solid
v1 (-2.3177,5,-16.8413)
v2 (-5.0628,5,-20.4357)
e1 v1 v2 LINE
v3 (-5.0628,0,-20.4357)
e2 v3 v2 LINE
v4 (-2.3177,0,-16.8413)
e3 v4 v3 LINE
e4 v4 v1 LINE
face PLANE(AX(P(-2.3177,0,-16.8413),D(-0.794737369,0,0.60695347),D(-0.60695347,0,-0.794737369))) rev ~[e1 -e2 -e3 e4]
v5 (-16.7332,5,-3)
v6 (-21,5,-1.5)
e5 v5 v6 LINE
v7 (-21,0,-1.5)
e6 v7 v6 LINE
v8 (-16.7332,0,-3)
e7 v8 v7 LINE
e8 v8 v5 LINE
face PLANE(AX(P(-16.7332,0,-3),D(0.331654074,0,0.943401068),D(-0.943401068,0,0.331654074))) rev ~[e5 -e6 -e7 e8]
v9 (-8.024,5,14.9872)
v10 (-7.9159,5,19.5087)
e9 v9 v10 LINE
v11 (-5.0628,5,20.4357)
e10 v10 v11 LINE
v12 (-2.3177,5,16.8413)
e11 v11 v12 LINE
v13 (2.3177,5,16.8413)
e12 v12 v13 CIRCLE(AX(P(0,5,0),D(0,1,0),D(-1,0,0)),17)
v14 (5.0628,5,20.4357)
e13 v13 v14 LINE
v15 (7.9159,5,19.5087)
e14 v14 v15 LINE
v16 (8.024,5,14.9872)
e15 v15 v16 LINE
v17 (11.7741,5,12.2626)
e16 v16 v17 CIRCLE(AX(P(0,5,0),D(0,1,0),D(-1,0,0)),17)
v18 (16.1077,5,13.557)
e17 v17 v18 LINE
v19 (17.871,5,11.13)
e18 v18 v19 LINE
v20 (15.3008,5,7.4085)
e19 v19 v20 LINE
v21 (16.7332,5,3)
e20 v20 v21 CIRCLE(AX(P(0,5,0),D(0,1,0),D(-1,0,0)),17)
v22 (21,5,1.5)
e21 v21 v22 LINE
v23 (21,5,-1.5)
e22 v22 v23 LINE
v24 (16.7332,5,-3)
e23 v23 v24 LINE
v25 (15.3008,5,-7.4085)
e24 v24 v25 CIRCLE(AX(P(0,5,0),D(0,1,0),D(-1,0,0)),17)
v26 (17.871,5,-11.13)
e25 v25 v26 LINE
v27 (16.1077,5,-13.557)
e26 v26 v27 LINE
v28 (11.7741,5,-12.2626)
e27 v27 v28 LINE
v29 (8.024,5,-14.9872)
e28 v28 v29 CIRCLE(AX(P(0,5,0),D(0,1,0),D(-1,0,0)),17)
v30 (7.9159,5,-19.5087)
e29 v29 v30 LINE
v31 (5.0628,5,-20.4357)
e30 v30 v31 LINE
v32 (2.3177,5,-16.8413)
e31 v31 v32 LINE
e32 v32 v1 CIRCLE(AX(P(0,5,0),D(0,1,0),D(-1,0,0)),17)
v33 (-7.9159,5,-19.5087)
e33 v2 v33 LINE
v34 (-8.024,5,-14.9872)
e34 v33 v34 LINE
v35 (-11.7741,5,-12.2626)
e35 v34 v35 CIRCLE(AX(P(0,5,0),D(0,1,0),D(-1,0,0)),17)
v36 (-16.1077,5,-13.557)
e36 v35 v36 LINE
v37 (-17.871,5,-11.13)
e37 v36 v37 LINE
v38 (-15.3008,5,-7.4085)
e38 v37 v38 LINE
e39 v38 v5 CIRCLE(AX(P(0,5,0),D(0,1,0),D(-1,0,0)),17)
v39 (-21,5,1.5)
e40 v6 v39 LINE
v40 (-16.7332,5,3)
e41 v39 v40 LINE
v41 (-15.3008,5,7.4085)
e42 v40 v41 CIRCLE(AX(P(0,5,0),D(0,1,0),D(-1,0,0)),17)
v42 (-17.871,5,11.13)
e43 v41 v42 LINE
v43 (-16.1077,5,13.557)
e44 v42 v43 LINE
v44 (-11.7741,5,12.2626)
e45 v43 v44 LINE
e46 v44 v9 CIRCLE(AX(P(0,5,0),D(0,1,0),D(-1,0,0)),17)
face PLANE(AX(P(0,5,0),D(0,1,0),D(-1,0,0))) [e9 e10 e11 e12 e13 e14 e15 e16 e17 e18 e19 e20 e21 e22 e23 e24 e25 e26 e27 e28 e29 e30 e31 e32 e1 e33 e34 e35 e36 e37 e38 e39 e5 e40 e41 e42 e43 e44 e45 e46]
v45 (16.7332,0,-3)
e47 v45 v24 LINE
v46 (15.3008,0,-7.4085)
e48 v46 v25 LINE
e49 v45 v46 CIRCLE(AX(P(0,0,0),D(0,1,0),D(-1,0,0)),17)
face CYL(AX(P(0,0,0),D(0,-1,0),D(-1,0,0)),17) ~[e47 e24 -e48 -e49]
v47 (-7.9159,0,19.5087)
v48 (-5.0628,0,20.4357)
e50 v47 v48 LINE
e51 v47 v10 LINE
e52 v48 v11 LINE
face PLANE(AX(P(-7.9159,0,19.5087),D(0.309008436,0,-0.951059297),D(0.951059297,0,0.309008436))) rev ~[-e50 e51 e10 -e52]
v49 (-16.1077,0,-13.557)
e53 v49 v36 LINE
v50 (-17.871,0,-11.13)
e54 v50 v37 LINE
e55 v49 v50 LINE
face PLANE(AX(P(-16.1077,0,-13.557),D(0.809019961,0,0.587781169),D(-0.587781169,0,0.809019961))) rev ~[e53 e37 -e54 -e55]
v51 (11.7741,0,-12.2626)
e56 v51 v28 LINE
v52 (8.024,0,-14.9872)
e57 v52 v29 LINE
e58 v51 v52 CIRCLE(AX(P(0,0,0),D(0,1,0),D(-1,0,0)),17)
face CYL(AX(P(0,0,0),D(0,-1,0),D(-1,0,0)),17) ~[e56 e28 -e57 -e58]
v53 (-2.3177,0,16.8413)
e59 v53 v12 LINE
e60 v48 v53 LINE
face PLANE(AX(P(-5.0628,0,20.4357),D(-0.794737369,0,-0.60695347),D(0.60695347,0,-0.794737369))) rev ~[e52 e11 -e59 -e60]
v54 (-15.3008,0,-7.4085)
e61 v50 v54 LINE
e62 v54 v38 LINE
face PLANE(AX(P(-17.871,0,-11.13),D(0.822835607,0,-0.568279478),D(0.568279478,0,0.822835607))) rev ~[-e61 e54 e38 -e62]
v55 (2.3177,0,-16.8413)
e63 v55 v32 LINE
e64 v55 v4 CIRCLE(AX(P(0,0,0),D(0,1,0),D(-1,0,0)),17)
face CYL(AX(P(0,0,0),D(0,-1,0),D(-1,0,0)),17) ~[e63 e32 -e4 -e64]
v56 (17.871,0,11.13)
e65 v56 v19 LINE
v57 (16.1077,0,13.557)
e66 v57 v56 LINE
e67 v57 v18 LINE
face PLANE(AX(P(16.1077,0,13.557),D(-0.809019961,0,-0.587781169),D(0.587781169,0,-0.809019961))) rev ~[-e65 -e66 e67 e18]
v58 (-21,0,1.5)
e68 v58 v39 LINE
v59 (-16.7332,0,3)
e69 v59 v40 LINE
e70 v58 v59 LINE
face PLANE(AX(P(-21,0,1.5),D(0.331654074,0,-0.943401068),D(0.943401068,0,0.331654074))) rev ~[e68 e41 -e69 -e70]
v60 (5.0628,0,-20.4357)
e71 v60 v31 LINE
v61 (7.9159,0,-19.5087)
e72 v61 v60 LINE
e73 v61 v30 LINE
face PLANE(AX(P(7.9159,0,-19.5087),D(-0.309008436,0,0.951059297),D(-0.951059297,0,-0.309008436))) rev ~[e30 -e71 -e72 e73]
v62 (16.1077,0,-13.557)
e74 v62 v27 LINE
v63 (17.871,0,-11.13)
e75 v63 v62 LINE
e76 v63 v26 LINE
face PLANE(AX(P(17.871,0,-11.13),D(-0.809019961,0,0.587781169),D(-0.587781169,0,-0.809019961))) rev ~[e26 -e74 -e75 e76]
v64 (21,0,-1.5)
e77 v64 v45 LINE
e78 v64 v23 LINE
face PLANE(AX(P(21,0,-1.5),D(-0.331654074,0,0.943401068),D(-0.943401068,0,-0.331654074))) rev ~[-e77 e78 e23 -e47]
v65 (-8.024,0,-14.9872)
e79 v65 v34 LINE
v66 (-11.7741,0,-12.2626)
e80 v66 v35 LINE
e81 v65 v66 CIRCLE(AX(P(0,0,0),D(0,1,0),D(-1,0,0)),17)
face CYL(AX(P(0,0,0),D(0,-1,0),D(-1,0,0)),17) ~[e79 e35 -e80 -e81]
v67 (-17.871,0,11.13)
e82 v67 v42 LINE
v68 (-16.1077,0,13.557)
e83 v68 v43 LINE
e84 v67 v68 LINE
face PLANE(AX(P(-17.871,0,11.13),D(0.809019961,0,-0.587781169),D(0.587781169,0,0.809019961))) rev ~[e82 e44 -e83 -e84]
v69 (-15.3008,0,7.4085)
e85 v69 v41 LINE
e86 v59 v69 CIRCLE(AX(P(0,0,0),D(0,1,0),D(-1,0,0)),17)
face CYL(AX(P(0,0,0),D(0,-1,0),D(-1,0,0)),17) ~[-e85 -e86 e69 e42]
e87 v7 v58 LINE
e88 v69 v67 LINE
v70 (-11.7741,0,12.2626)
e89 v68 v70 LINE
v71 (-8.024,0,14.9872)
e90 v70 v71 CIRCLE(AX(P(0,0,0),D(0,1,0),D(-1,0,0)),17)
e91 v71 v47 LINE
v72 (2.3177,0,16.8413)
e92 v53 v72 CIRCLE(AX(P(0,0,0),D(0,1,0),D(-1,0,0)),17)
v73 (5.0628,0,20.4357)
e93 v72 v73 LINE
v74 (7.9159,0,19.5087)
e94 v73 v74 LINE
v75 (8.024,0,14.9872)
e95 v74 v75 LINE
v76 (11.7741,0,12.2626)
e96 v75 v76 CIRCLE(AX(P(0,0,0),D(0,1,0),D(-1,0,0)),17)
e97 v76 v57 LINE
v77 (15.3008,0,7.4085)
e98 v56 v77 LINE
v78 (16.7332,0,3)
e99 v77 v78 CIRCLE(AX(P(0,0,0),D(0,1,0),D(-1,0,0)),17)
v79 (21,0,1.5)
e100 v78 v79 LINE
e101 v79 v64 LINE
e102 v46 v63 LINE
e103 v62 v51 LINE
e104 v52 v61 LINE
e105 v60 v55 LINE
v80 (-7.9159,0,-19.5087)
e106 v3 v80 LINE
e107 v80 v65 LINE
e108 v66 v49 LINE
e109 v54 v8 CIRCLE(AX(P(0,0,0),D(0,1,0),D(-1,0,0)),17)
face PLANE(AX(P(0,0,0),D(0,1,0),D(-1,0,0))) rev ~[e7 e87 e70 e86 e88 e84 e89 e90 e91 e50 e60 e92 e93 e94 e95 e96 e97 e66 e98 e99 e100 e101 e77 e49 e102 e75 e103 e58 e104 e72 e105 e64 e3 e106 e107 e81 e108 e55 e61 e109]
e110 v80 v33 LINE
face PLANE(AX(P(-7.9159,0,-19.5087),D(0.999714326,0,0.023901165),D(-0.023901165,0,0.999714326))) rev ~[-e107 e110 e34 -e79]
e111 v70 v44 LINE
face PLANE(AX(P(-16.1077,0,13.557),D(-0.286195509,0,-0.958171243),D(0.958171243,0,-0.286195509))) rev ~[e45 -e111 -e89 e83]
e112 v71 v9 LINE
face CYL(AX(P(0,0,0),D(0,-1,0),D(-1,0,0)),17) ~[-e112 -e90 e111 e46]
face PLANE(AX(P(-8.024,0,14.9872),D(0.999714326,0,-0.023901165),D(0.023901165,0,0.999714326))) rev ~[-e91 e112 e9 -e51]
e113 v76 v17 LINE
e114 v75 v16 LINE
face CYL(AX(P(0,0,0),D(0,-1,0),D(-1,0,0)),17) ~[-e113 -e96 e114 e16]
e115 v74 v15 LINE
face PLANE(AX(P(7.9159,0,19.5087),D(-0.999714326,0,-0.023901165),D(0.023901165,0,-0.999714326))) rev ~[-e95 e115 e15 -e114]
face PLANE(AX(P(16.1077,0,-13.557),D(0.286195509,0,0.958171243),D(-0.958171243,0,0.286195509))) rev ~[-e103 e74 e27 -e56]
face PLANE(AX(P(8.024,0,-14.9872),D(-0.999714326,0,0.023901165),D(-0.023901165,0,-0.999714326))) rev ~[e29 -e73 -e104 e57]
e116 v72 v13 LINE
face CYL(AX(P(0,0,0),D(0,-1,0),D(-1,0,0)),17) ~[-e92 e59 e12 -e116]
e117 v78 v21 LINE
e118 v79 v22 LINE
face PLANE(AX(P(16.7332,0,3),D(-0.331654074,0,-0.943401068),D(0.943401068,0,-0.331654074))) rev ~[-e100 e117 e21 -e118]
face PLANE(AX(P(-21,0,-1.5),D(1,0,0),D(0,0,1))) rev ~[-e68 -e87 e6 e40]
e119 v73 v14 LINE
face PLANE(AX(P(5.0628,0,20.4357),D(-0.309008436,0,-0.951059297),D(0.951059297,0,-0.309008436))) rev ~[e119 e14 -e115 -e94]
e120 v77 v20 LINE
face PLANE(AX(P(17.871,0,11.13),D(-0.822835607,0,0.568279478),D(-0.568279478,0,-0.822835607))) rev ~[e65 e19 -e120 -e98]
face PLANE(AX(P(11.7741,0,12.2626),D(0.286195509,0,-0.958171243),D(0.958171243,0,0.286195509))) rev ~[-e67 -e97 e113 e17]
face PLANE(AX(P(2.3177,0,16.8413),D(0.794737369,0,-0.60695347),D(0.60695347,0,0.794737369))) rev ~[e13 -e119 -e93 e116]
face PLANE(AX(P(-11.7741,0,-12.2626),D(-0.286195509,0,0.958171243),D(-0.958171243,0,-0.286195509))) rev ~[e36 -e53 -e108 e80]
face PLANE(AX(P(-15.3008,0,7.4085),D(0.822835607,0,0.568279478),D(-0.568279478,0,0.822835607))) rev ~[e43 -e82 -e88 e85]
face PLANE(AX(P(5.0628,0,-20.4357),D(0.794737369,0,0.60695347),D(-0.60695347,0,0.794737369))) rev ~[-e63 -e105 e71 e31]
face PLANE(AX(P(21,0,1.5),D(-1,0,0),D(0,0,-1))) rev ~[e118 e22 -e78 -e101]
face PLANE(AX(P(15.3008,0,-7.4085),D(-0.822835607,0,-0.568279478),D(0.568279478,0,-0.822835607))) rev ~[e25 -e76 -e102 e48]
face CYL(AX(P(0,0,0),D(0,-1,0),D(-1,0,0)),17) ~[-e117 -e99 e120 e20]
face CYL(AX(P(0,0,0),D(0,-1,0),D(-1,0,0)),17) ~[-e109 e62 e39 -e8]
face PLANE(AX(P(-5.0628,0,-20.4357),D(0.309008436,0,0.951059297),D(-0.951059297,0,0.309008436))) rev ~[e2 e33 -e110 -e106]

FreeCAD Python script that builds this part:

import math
import FreeCAD as App
import Part
import Sketcher

V = App.Vector
Q = App.Units.Quantity

doc = App.newDocument("Part")
params = doc.addObject("Spreadsheet::Sheet", "Params")
for row, (alias, value) in enumerate([
    ("sketch1_radius", "17 mm"),
    ("sketch1_height", "3 mm"),
    ("sketch1_length", "3 mm"),
    ("pad1_length", "5 mm"),
], start=1):
    params.set(f"A{row}", alias)
    params.set(f"B{row}", "=" + value)
    params.setAlias(f"B{row}", alias)

body = doc.addObject("PartDesign::Body", "Body")

sketch1 = body.newObject("Sketcher::SketchObject", "Sketch")
sketch1.AttachmentSupport = (doc.getObject("XZ_Plane"), [""])
sketch1.MapMode = "FlatFace"
sketch1.addGeometry(Part.ArcOfCircle(Part.Circle(V(0, 0, 0), V(0, 0, 1), 17), math.radians(-169.835751), math.radians(-154.164181)), False)
sketch1.addGeometry(Part.LineSegment(V(-16.7332, -3, 0), V(-21, -1.5, 0)), False)
sketch1.addGeometry(Part.LineSegment(V(-21, -1.5, 0), V(-21, 1.5, 0)), False)
sketch1.addGeometry(Part.LineSegment(V(-21, 1.5, 0), V(-16.7332, 3, 0)), False)
sketch1.addGeometry(Part.ArcOfCircle(Part.Circle(V(0, 0, 0), V(0, 0, 1), 17), math.radians(154.164181), math.radians(169.835751)), False)
sketch1.addGeometry(Part.LineSegment(V(-15.3008, 7.4085, 0), V(-17.871, 11.13, 0)), False)
sketch1.addGeometry(Part.LineSegment(V(-17.871, 11.13, 0), V(-16.1077, 13.557, 0)), False)
sketch1.addGeometry(Part.LineSegment(V(-16.1077, 13.557, 0), V(-11.7741, 12.2626, 0)), False)
sketch1.addGeometry(Part.ArcOfCircle(Part.Circle(V(0, 0, 0), V(0, 0, 1), 17), math.radians(118.16416), math.radians(133.835733)), False)
sketch1.addGeometry(Part.LineSegment(V(-8.024, 14.9872, 0), V(-7.9159, 19.5087, 0)), False)
sketch1.addGeometry(Part.LineSegment(V(-7.9159, 19.5087, 0), V(-5.0628, 20.4357, 0)), False)
sketch1.addGeometry(Part.LineSegment(V(-5.0628, 20.4357, 0), V(-2.3177, 16.8413, 0)), False)
sketch1.addGeometry(Part.ArcOfCircle(Part.Circle(V(0, 0, 0), V(0, 0, 1), 17), math.radians(82.164175), math.radians(97.835825)), False)
sketch1.addGeometry(Part.LineSegment(V(2.3177, 16.8413, 0), V(5.0628, 20.4357, 0)), False)
sketch1.addGeometry(Part.LineSegment(V(5.0628, 20.4357, 0), V(7.9159, 19.5087, 0)), False)
sketch1.addGeometry(Part.LineSegment(V(7.9159, 19.5087, 0), V(8.024, 14.9872, 0)), False)
sketch1.addGeometry(Part.ArcOfCircle(Part.Circle(V(0, 0, 0), V(0, 0, 1), 17), math.radians(46.164267), math.radians(61.83584)), False)
sketch1.addGeometry(Part.LineSegment(V(11.7741, 12.2626, 0), V(16.1077, 13.557, 0)), False)
sketch1.addGeometry(Part.LineSegment(V(16.1077, 13.557, 0), V(17.871, 11.13, 0)), False)
sketch1.addGeometry(Part.LineSegment(V(17.871, 11.13, 0), V(15.3008, 7.4085, 0)), False)
sketch1.addGeometry(Part.ArcOfCircle(Part.Circle(V(0, 0, 0), V(0, 0, 1), 17), math.radians(10.164249), math.radians(25.835819)), False)
sketch1.addGeometry(Part.LineSegment(V(16.7332, 3, 0), V(21, 1.5, 0)), False)
sketch1.addGeometry(Part.LineSegment(V(21, 1.5, 0), V(21, -1.5, 0)), False)
sketch1.addGeometry(Part.LineSegment(V(21, -1.5, 0), V(16.7332, -3, 0)), False)
sketch1.addGeometry(Part.ArcOfCircle(Part.Circle(V(0, 0, 0), V(0, 0, 1), 17), math.radians(-25.835819), math.radians(-10.164249)), False)
sketch1.addGeometry(Part.LineSegment(V(15.3008, -7.4085, 0), V(17.871, -11.13, 0)), False)
sketch1.addGeometry(Part.LineSegment(V(17.871, -11.13, 0), V(16.1077, -13.557, 0)), False)
sketch1.addGeometry(Part.LineSegment(V(16.1077, -13.557, 0), V(11.7741, -12.2626, 0)), False)
sketch1.addGeometry(Part.ArcOfCircle(Part.Circle(V(0, 0, 0), V(0, 0, 1), 17), math.radians(-61.83584), math.radians(-46.164267)), False)
sketch1.addGeometry(Part.LineSegment(V(8.024, -14.9872, 0), V(7.9159, -19.5087, 0)), False)
sketch1.addGeometry(Part.LineSegment(V(7.9159, -19.5087, 0), V(5.0628, -20.4357, 0)), False)
sketch1.addGeometry(Part.LineSegment(V(5.0628, -20.4357, 0), V(2.3177, -16.8413, 0)), False)
sketch1.addGeometry(Part.ArcOfCircle(Part.Circle(V(0, 0, 0), V(0, 0, 1), 17), math.radians(-97.835825), math.radians(-82.164175)), False)
sketch1.addGeometry(Part.LineSegment(V(-2.3177, -16.8413, 0), V(-5.0628, -20.4357, 0)), False)
sketch1.addGeometry(Part.LineSegment(V(-5.0628, -20.4357, 0), V(-7.9159, -19.5087, 0)), False)
sketch1.addGeometry(Part.LineSegment(V(-7.9159, -19.5087, 0), V(-8.024, -14.9872, 0)), False)
sketch1.addGeometry(Part.ArcOfCircle(Part.Circle(V(0, 0, 0), V(0, 0, 1), 17), math.radians(-133.835733), math.radians(-118.16416)), False)
sketch1.addGeometry(Part.LineSegment(V(-11.7741, -12.2626, 0), V(-16.1077, -13.557, 0)), False)
sketch1.addGeometry(Part.LineSegment(V(-16.1077, -13.557, 0), V(-17.871, -11.13, 0)), False)
sketch1.addGeometry(Part.LineSegment(V(-17.871, -11.13, 0), V(-15.3008, -7.4085, 0)), False)
sketch1.addConstraint(Sketcher.Constraint("Coincident", 0, 1, 1, 1))
sketch1.addConstraint(Sketcher.Constraint("Coincident", 1, 2, 2, 1))
sketch1.addConstraint(Sketcher.Constraint("Coincident", 2, 2, 3, 1))
sketch1.addConstraint(Sketcher.Constraint("Coincident", 3, 2, 4, 2))
sketch1.addConstraint(Sketcher.Constraint("Coincident", 4, 1, 5, 1))
sketch1.addConstraint(Sketcher.Constraint("Coincident", 5, 2, 6, 1))
sketch1.addConstraint(Sketcher.Constraint("Coincident", 6, 2, 7, 1))
sketch1.addConstraint(Sketcher.Constraint("Coincident", 7, 2, 8, 2))
sketch1.addConstraint(Sketcher.Constraint("Coincident", 8, 1, 9, 1))
sketch1.addConstraint(Sketcher.Constraint("Coincident", 9, 2, 10, 1))
sketch1.addConstraint(Sketcher.Constraint("Coincident", 10, 2, 11, 1))
sketch1.addConstraint(Sketcher.Constraint("Coincident", 11, 2, 12, 2))
sketch1.addConstraint(Sketcher.Constraint("Coincident", 12, 1, 13, 1))
sketch1.addConstraint(Sketcher.Constraint("Coincident", 13, 2, 14, 1))
sketch1.addConstraint(Sketcher.Constraint("Coincident", 14, 2, 15, 1))
sketch1.addConstraint(Sketcher.Constraint("Coincident", 15, 2, 16, 2))
sketch1.addConstraint(Sketcher.Constraint("Coincident", 16, 1, 17, 1))
sketch1.addConstraint(Sketcher.Constraint("Coincident", 17, 2, 18, 1))
sketch1.addConstraint(Sketcher.Constraint("Coincident", 18, 2, 19, 1))
sketch1.addConstraint(Sketcher.Constraint("Coincident", 19, 2, 20, 2))
sketch1.addConstraint(Sketcher.Constraint("Coincident", 20, 1, 21, 1))
sketch1.addConstraint(Sketcher.Constraint("Coincident", 21, 2, 22, 1))
sketch1.addConstraint(Sketcher.Constraint("Coincident", 22, 2, 23, 1))
sketch1.addConstraint(Sketcher.Constraint("Coincident", 23, 2, 24, 2))
sketch1.addConstraint(Sketcher.Constraint("Coincident", 24, 1, 25, 1))
sketch1.addConstraint(Sketcher.Constraint("Coincident", 25, 2, 26, 1))
sketch1.addConstraint(Sketcher.Constraint("Coincident", 26, 2, 27, 1))
sketch1.addConstraint(Sketcher.Constraint("Coincident", 27, 2, 28, 2))
sketch1.addConstraint(Sketcher.Constraint("Coincident", 28, 1, 29, 1))
sketch1.addConstraint(Sketcher.Constraint("Coincident", 29, 2, 30, 1))
sketch1.addConstraint(Sketcher.Constraint("Coincident", 30, 2, 31, 1))
sketch1.addConstraint(Sketcher.Constraint("Coincident", 31, 2, 32, 2))
sketch1.addConstraint(Sketcher.Constraint("Coincident", 32, 1, 33, 1))
sketch1.addConstraint(Sketcher.Constraint("Coincident", 33, 2, 34, 1))
sketch1.addConstraint(Sketcher.Constraint("Coincident", 34, 2, 35, 1))
sketch1.addConstraint(Sketcher.Constraint("Coincident", 35, 2, 36, 2))
sketch1.addConstraint(Sketcher.Constraint("Coincident", 36, 1, 37, 1))
sketch1.addConstraint(Sketcher.Constraint("Coincident", 37, 2, 38, 1))
sketch1.addConstraint(Sketcher.Constraint("Coincident", 38, 2, 39, 1))
sketch1.addConstraint(Sketcher.Constraint("Coincident", 39, 2, 0, 2))
sketch1.addConstraint(Sketcher.Constraint("Vertical", 2))
sketch1.addConstraint(Sketcher.Constraint("Vertical", 22))
sketch1.addConstraint(Sketcher.Constraint("Coincident", 0, 3, -1, 1))
sketch1.addConstraint(Sketcher.Constraint("Coincident", 4, 3, -1, 1))
sketch1.addConstraint(Sketcher.Constraint("Coincident", 8, 3, -1, 1))
sketch1.addConstraint(Sketcher.Constraint("Coincident", 12, 3, -1, 1))
sketch1.addConstraint(Sketcher.Constraint("Coincident", 16, 3, -1, 1))
sketch1.addConstraint(Sketcher.Constraint("Coincident", 20, 3, -1, 1))
sketch1.addConstraint(Sketcher.Constraint("Coincident", 24, 3, -1, 1))
sketch1.addConstraint(Sketcher.Constraint("Coincident", 28, 3, -1, 1))
sketch1.addConstraint(Sketcher.Constraint("Coincident", 32, 3, -1, 1))
sketch1.addConstraint(Sketcher.Constraint("Coincident", 36, 3, -1, 1))
sketch1.addConstraint(Sketcher.Constraint("Equal", 0, 4))
sketch1.addConstraint(Sketcher.Constraint("Equal", 4, 8))
sketch1.addConstraint(Sketcher.Constraint("Equal", 8, 12))
sketch1.addConstraint(Sketcher.Constraint("Equal", 12, 16))
sketch1.addConstraint(Sketcher.Constraint("Equal", 16, 20))
sketch1.addConstraint(Sketcher.Constraint("Equal", 20, 24))
sketch1.addConstraint(Sketcher.Constraint("Equal", 24, 28))
sketch1.addConstraint(Sketcher.Constraint("Equal", 28, 32))
sketch1.addConstraint(Sketcher.Constraint("Equal", 32, 36))
sketch1.addConstraint(Sketcher.Constraint("Symmetric", 1, 2, 21, 2, -1, 1))
sketch1.addConstraint(Sketcher.Constraint("Symmetric", 5, 2, 25, 2, -1, 1))
sketch1.addConstraint(Sketcher.Constraint("Symmetric", 6, 2, 26, 2, -1, 1))
sketch1.addConstraint(Sketcher.Constraint("Symmetric", 9, 2, 29, 2, -1, 1))
sketch1.addConstraint(Sketcher.Constraint("Symmetric", 10, 2, 30, 2, -1, 1))
sketch1.addConstraint(Sketcher.Constraint("Symmetric", 13, 2, 33, 2, -1, 1))
sketch1.addConstraint(Sketcher.Constraint("Symmetric", 14, 2, 34, 2, -1, 1))
sketch1.addConstraint(Sketcher.Constraint("Symmetric", 17, 2, 37, 2, -1, 1))
sketch1.addConstraint(Sketcher.Constraint("Symmetric", 18, 2, 38, 2, -1, 1))
sketch1.addConstraint(Sketcher.Constraint("Symmetric", 10, 2, 13, 2, -2))
sketch1.addConstraint(Sketcher.Constraint("Symmetric", 9, 2, 14, 2, -2))
sketch1.addConstraint(Sketcher.Constraint("Symmetric", 6, 2, 17, 2, -2))
sketch1.addConstraint(Sketcher.Constraint("Symmetric", 5, 2, 18, 2, -2))
sketch1.addConstraint(Sketcher.Constraint("Parallel", 1, 21))
sketch1.addConstraint(Sketcher.Constraint("Parallel", 3, 23))
sketch1.addConstraint(Sketcher.Constraint("Parallel", 5, 25))
sketch1.addConstraint(Sketcher.Constraint("Parallel", 7, 27))
sketch1.addConstraint(Sketcher.Constraint("Parallel", 9, 29))
sketch1.addConstraint(Sketcher.Constraint("Parallel", 11, 31))
sketch1.addConstraint(Sketcher.Constraint("Parallel", 13, 33))
sketch1.addConstraint(Sketcher.Constraint("Parallel", 15, 35))
sketch1.addConstraint(Sketcher.Constraint("Parallel", 17, 37))
sketch1.addConstraint(Sketcher.Constraint("Parallel", 19, 39))
sketch1.addConstraint(Sketcher.Constraint("Horizontal", 11, 2, 12, 1))
sketch1.addConstraint(Sketcher.Constraint("Horizontal", 8, 1, 15, 2))
sketch1.addConstraint(Sketcher.Constraint("Horizontal", 7, 2, 16, 1))
sketch1.addConstraint(Sketcher.Constraint("Horizontal", 4, 1, 19, 2))
sketch1.addConstraint(Sketcher.Constraint("Horizontal", 3, 2, 20, 1))
sketch1.addConstraint(Sketcher.Constraint("Horizontal", 2, 2, 21, 2))
sketch1.addConstraint(Sketcher.Constraint("Horizontal", 1, 2, 22, 2))
sketch1.addConstraint(Sketcher.Constraint("Equal", 3, 5))
sketch1.addConstraint(Sketcher.Constraint("Equal", 5, 7))
sketch1.addConstraint(Sketcher.Constraint("Equal", 7, 9))
sketch1.addConstraint(Sketcher.Constraint("Equal", 6, 10))
sketch1.addConstraint(Sketcher.Constraint("Equal", 9, 11))
sketch1.addConstraint(Sketcher.Constraint("Radius", 0, Q("17 mm")))
sketch1.addConstraint(Sketcher.Constraint("DistanceY", 2, 1, 2, 2, Q("3 mm")))
sketch1.addConstraint(Sketcher.Constraint("Distance", 6, Q("3 mm")))
sketch1.addConstraint(Sketcher.Constraint("DistanceY", 0, 1, -1, 1, Q("3 mm")))
sketch1.addConstraint(Sketcher.Constraint("Angle", 6, Q("54.0003 deg")))
sketch1.addConstraint(Sketcher.Constraint("Angle", 10, Q("17.9995 deg")))
sketch1.addConstraint(Sketcher.Constraint("DistanceX", 1, 2, -1, 1, Q("21 mm")))
sketch1.addConstraint(Sketcher.Constraint("Angle", 5, Q("124.6303 deg")))
sketch1.addConstraint(Sketcher.Constraint("Angle", 7, Q("-16.6303 deg")))
sketch1.addConstraint(Sketcher.Constraint("Angle", 9, Q("88.6304 deg")))
sketch1.addConstraint(Sketcher.Constraint("Angle", 11, Q("-52.6305 deg")))
sketch1.setExpression("Constraints[96]", "Params.sketch1_radius")
sketch1.setExpression("Constraints[97]", "Params.sketch1_height")
sketch1.setExpression("Constraints[98]", "Params.sketch1_length")
pad1 = body.newObject("PartDesign::Pad", "Pad")
pad1.Profile = sketch1
pad1.setExpression("Length", "Params.pad1_length")
pad1.Reversed = True

doc.recompute()
